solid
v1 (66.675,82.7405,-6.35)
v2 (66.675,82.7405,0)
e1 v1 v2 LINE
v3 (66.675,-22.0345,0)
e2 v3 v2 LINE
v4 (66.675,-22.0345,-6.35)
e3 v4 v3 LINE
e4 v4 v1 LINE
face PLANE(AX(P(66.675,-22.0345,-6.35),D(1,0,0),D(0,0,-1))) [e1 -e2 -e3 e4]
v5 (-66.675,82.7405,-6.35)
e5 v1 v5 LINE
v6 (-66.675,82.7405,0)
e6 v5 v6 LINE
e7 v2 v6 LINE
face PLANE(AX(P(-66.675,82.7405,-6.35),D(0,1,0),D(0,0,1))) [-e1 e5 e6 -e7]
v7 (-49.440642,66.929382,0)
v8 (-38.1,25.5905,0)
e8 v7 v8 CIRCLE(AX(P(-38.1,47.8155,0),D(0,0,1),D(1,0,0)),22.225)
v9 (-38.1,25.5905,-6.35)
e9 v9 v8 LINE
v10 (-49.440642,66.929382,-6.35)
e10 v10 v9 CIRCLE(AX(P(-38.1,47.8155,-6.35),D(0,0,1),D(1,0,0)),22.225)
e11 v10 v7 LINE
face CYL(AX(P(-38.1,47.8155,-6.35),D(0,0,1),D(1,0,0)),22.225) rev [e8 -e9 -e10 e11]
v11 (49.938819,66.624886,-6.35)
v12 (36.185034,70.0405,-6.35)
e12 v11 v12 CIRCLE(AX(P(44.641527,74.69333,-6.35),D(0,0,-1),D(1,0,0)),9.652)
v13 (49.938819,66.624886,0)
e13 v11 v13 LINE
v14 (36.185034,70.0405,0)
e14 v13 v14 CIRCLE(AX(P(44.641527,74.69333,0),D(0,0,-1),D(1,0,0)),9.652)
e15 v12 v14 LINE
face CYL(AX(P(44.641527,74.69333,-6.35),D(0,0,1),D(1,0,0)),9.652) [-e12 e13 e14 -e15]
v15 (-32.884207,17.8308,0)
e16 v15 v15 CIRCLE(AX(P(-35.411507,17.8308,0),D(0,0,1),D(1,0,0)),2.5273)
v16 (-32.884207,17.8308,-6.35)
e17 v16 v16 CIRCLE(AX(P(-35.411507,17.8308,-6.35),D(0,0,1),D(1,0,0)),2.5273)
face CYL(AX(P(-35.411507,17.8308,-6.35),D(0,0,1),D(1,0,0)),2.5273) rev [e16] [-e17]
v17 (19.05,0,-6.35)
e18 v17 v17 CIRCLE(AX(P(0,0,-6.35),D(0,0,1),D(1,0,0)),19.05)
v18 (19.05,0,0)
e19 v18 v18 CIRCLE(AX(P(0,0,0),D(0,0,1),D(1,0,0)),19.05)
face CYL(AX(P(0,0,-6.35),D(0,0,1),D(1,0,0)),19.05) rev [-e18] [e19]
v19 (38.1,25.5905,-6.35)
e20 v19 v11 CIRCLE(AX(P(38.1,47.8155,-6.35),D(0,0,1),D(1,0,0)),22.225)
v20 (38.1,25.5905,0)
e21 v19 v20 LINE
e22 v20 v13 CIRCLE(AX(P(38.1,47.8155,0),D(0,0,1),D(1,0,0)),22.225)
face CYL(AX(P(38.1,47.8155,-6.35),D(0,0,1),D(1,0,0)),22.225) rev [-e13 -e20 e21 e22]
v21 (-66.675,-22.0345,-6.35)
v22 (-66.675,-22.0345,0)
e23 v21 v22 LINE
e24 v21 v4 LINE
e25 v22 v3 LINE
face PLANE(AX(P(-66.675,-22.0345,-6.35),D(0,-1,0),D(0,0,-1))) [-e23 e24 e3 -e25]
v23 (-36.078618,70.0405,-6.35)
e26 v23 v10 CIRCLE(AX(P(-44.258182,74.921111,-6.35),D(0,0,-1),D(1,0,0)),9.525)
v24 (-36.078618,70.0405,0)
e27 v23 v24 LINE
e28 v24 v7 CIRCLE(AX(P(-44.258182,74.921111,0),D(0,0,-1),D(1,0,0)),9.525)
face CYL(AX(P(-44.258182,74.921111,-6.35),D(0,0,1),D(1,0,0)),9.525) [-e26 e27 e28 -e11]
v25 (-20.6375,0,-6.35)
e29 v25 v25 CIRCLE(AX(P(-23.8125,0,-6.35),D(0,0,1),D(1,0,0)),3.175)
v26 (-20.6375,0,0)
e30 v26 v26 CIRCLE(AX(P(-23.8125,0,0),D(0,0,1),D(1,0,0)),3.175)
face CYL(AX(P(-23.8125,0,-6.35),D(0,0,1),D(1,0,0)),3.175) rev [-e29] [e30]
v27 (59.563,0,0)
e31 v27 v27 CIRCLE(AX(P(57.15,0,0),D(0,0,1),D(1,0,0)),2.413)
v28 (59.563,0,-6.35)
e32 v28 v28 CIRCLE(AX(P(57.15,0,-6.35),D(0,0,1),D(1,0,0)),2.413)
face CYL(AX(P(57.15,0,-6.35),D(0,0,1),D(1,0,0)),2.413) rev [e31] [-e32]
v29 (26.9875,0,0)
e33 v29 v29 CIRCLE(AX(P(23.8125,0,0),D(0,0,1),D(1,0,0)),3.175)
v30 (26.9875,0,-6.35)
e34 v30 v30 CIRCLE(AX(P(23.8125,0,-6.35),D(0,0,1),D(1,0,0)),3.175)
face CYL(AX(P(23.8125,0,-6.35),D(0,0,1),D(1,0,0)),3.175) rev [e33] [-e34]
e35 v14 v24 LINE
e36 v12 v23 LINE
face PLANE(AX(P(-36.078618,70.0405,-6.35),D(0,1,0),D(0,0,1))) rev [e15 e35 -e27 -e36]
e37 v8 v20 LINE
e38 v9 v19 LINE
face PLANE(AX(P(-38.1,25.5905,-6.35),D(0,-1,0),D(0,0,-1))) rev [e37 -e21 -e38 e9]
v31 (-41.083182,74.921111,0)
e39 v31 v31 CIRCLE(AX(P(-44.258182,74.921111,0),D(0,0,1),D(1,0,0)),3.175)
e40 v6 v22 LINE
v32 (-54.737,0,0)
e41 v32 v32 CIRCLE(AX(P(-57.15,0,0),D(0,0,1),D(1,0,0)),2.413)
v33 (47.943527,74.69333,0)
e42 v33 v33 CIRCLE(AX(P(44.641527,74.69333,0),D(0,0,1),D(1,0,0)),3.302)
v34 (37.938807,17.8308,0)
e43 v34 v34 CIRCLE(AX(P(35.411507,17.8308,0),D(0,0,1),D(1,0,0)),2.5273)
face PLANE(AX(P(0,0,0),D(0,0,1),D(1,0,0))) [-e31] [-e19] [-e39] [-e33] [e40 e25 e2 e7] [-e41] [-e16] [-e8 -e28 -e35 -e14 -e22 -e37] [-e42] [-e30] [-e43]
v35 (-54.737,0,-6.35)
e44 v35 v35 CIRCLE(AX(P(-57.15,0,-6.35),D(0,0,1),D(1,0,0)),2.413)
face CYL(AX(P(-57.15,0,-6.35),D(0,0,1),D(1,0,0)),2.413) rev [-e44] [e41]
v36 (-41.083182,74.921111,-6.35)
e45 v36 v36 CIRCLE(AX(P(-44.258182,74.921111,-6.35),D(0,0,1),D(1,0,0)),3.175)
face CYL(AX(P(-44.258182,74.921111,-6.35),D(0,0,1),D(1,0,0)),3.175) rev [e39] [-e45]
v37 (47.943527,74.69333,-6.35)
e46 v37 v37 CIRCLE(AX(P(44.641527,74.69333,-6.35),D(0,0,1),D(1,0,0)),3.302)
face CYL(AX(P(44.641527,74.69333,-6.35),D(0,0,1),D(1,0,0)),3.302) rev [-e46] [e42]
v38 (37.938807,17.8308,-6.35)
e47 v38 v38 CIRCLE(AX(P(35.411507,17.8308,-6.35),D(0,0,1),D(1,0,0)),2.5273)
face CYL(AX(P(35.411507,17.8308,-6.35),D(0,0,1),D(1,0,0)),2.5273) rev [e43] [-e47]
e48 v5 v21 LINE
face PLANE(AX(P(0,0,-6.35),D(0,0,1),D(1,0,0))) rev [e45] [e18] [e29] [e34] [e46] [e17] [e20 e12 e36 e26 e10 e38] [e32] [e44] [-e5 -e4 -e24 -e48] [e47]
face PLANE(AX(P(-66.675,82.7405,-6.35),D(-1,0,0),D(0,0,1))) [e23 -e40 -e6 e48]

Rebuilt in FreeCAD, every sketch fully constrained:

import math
import FreeCAD as App
import Part
import Sketcher
Q = App.Units.Quantity

doc = App.newDocument("Part")
params = doc.addObject("Spreadsheet::Sheet", "Params")
for row, (alias, value) in enumerate([
    ("sketch1_diameter", "1.5 in"),
    ("sketch1_diameter2", "0.19 in"),
    ("sketch1_diameter3", "0.25 in"),
    ("sketch1_diameter4", "0.26 in"),
    ("sketch1_width", "3 in"),
    ("pad1_length", "0.25 in"),
], start=1):
    params.set(f"A{row}", alias)
    params.set(f"B{row}", "=" + value)
    params.setAlias(f"B{row}", alias)

body = doc.addObject("PartDesign::Body", "Body")

sketch1 = body.newObject("Sketcher::SketchObject", "Sketch")
sketch1.AttachmentSupport = (doc.getObject("XY_Plane"), [""])
sketch1.MapMode = "FlatFace"
sketch1.addGeometry([
    Part.LineSegment(App.Vector(-66.7, 82.7, 0), App.Vector(-66.7, -22, 0)),
    Part.LineSegment(App.Vector(-66.7, -22, 0), App.Vector(66.7, -22, 0)),
    Part.LineSegment(App.Vector(66.7, -22, 0), App.Vector(66.7, 82.7, 0)),
    Part.LineSegment(App.Vector(66.7, 82.7, 0), App.Vector(-66.7, 82.7, 0)),
    Part.Circle(App.Vector(-57.1, 0, 0), App.Vector(0, 0, 1), 2.4),
    Part.Circle(App.Vector(-23.8, 0, 0), App.Vector(0, 0, 1), 3.2),
    Part.Circle(App.Vector(-35.4, 17.8, 0), App.Vector(0, 0, 1), 2.5),
    Part.Circle(App.Vector(0, 0, 0), App.Vector(0, 0, 1), 19.1),
    Part.Circle(App.Vector(23.8, 0, 0), App.Vector(0, 0, 1), 3.2),
    Part.Circle(App.Vector(57.1, 0, 0), App.Vector(0, 0, 1), 2.4),
    Part.Circle(App.Vector(35.4, 17.8, 0), App.Vector(0, 0, 1), 2.5),
    Part.Circle(App.Vector(-44.3, 74.9, 0), App.Vector(0, 0, 1), 3.2),
    Part.ArcOfCircle(Part.Circle(App.Vector(-44.3, 74.9, 0), App.Vector(0, 0, 1), 9.5), math.radians(-123), math.radians(-31)),
    Part.LineSegment(App.Vector(-36.1, 70, 0), App.Vector(36.2, 70, 0)),
    Part.ArcOfCircle(Part.Circle(App.Vector(44.6, 74.7, 0), App.Vector(0, 0, 1), 9.7), math.radians(-151), math.radians(-57)),
    Part.ArcOfCircle(Part.Circle(App.Vector(38.1, 47.8, 0), App.Vector(0, 0, 1), 22.2), math.radians(-90), math.radians(58)),
    Part.LineSegment(App.Vector(38.1, 25.6, 0), App.Vector(-38.1, 25.6, 0)),
    Part.ArcOfCircle(Part.Circle(App.Vector(-38.1, 47.8, 0), App.Vector(0, 0, 1), 22.2), math.radians(121), math.radians(270)),
    Part.Circle(App.Vector(44.6, 74.7, 0), App.Vector(0, 0, 1), 3.3),
], False)
sketch1.addConstraint([
    Sketcher.Constraint("Coincident", 0, 2, 1, 1),
    Sketcher.Constraint("Coincident", 1, 2, 2, 1),
    Sketcher.Constraint("Coincident", 2, 2, 3, 1),
    Sketcher.Constraint("Coincident", 3, 2, 0, 1),
    Sketcher.Constraint("Coincident", 12, 2, 13, 1),
    Sketcher.Constraint("Coincident", 13, 2, 14, 1),
    Sketcher.Constraint("Coincident", 14, 2, 15, 2),
    Sketcher.Constraint("Tangent", 15, 1, 16, 1),
    Sketcher.Constraint("Tangent", 16, 2, 17, 2),
    Sketcher.Constraint("Coincident", 17, 1, 12, 1),
    Sketcher.Constraint("Vertical", 0),
    Sketcher.Constraint("Horizontal", 1),
    Sketcher.Constraint("Vertical", 2),
    Sketcher.Constraint("Horizontal", 3),
    Sketcher.Constraint("Horizontal", 13),
    Sketcher.Constraint("Horizontal", 16),
    Sketcher.Constraint("Coincident", 7, 3, -1, 1),
    Sketcher.Constraint("Coincident", 12, 3, 11, 3),
    Sketcher.Constraint("Coincident", 18, 3, 14, 3),
    Sketcher.Constraint("Equal", 5, 8),
    Sketcher.Constraint("Equal", 4, 9),
    Sketcher.Constraint("Equal", 6, 10),
    Sketcher.Constraint("Equal", 8, 11),
    Sketcher.Constraint("Equal", 15, 17),
    Sketcher.Constraint("Symmetric", 5, 3, 8, 3, -1, 1),
    Sketcher.Constraint("Symmetric", 4, 3, 9, 3, -1, 1),
    Sketcher.Constraint("Symmetric", 6, 3, 10, 3, -2),
    Sketcher.Constraint("PointOnObject", 4, 3, -1),
    Sketcher.Constraint("PointOnObject", 5, 3, -1),
    Sketcher.Constraint("Diameter", 7, Q("1.5 in")),
    Sketcher.Constraint("Diameter", 4, Q("0.19 in")),
    Sketcher.Constraint("Diameter", 5, Q("0.25 in")),
    Sketcher.Constraint("Diameter", 18, Q("0.26 in")),
    Sketcher.Constraint("DistanceX", 16, 2, 16, 1, Q("3 in")),
    Sketcher.Constraint("Radius", 14, Q("0.38 in")),
    Sketcher.Constraint("Diameter", 6, Q("0.199 in")),
    Sketcher.Constraint("Radius", 12, Q("0.375 in")),
    Sketcher.Constraint("Radius", 15, Q("0.875 in")),
    Sketcher.Constraint("DistanceX", 1, 1, 1, 2, Q("5.25 in")),
    Sketcher.Constraint("DistanceX", -1, 1, 15, 3, Q("1.5 in")),
    Sketcher.Constraint("DistanceX", 4, 3, 9, 3, Q("4.5 in")),
    Sketcher.Constraint("DistanceY", 12, 2, 3, 2, Q("0.5 in")),
    Sketcher.Constraint("DistanceY", 0, 2, 0, 1, Q("4.125 in")),
    Sketcher.Constraint("DistanceY", 0, 2, 17, 3, Q("2.75 in")),
    Sketcher.Constraint("DistanceX", 5, 3, -1, 1, Q("0.9375 in")),
    Sketcher.Constraint("DistanceY", -1, 1, 6, 3, Q("0.702 in")),
    Sketcher.Constraint("DistanceX", 0, 2, -1, 1, Q("2.625 in")),
    Sketcher.Constraint("DistanceY", -1, 1, 15, 3, Q("1.8825 in")),
    Sketcher.Constraint("DistanceX", 13, 1, 13, 2, 72.263651),
    Sketcher.Constraint("DistanceX", 11, 3, -1, 1, 44.258182),
    Sketcher.Constraint("DistanceY", -1, 1, 11, 3, 74.921111),
    Sketcher.Constraint("DistanceY", -1, 1, 14, 3, 74.69333),
    Sketcher.Constraint("DistanceX", 11, 3, 10, 3, 79.669688),
])
sketch1.setExpression("Constraints[29]", "Params.sketch1_diameter")
sketch1.setExpression("Constraints[30]", "Params.sketch1_diameter2")
sketch1.setExpression("Constraints[31]", "Params.sketch1_diameter3")
sketch1.setExpression("Constraints[32]", "Params.sketch1_diameter4")
sketch1.setExpression("Constraints[33]", "Params.sketch1_width")
pad1 = body.newObject("PartDesign::Pad", "Pad")
pad1.Profile = sketch1
pad1.setExpression("Length", "Params.pad1_length")
pad1.Reversed = True

doc.recompute()
